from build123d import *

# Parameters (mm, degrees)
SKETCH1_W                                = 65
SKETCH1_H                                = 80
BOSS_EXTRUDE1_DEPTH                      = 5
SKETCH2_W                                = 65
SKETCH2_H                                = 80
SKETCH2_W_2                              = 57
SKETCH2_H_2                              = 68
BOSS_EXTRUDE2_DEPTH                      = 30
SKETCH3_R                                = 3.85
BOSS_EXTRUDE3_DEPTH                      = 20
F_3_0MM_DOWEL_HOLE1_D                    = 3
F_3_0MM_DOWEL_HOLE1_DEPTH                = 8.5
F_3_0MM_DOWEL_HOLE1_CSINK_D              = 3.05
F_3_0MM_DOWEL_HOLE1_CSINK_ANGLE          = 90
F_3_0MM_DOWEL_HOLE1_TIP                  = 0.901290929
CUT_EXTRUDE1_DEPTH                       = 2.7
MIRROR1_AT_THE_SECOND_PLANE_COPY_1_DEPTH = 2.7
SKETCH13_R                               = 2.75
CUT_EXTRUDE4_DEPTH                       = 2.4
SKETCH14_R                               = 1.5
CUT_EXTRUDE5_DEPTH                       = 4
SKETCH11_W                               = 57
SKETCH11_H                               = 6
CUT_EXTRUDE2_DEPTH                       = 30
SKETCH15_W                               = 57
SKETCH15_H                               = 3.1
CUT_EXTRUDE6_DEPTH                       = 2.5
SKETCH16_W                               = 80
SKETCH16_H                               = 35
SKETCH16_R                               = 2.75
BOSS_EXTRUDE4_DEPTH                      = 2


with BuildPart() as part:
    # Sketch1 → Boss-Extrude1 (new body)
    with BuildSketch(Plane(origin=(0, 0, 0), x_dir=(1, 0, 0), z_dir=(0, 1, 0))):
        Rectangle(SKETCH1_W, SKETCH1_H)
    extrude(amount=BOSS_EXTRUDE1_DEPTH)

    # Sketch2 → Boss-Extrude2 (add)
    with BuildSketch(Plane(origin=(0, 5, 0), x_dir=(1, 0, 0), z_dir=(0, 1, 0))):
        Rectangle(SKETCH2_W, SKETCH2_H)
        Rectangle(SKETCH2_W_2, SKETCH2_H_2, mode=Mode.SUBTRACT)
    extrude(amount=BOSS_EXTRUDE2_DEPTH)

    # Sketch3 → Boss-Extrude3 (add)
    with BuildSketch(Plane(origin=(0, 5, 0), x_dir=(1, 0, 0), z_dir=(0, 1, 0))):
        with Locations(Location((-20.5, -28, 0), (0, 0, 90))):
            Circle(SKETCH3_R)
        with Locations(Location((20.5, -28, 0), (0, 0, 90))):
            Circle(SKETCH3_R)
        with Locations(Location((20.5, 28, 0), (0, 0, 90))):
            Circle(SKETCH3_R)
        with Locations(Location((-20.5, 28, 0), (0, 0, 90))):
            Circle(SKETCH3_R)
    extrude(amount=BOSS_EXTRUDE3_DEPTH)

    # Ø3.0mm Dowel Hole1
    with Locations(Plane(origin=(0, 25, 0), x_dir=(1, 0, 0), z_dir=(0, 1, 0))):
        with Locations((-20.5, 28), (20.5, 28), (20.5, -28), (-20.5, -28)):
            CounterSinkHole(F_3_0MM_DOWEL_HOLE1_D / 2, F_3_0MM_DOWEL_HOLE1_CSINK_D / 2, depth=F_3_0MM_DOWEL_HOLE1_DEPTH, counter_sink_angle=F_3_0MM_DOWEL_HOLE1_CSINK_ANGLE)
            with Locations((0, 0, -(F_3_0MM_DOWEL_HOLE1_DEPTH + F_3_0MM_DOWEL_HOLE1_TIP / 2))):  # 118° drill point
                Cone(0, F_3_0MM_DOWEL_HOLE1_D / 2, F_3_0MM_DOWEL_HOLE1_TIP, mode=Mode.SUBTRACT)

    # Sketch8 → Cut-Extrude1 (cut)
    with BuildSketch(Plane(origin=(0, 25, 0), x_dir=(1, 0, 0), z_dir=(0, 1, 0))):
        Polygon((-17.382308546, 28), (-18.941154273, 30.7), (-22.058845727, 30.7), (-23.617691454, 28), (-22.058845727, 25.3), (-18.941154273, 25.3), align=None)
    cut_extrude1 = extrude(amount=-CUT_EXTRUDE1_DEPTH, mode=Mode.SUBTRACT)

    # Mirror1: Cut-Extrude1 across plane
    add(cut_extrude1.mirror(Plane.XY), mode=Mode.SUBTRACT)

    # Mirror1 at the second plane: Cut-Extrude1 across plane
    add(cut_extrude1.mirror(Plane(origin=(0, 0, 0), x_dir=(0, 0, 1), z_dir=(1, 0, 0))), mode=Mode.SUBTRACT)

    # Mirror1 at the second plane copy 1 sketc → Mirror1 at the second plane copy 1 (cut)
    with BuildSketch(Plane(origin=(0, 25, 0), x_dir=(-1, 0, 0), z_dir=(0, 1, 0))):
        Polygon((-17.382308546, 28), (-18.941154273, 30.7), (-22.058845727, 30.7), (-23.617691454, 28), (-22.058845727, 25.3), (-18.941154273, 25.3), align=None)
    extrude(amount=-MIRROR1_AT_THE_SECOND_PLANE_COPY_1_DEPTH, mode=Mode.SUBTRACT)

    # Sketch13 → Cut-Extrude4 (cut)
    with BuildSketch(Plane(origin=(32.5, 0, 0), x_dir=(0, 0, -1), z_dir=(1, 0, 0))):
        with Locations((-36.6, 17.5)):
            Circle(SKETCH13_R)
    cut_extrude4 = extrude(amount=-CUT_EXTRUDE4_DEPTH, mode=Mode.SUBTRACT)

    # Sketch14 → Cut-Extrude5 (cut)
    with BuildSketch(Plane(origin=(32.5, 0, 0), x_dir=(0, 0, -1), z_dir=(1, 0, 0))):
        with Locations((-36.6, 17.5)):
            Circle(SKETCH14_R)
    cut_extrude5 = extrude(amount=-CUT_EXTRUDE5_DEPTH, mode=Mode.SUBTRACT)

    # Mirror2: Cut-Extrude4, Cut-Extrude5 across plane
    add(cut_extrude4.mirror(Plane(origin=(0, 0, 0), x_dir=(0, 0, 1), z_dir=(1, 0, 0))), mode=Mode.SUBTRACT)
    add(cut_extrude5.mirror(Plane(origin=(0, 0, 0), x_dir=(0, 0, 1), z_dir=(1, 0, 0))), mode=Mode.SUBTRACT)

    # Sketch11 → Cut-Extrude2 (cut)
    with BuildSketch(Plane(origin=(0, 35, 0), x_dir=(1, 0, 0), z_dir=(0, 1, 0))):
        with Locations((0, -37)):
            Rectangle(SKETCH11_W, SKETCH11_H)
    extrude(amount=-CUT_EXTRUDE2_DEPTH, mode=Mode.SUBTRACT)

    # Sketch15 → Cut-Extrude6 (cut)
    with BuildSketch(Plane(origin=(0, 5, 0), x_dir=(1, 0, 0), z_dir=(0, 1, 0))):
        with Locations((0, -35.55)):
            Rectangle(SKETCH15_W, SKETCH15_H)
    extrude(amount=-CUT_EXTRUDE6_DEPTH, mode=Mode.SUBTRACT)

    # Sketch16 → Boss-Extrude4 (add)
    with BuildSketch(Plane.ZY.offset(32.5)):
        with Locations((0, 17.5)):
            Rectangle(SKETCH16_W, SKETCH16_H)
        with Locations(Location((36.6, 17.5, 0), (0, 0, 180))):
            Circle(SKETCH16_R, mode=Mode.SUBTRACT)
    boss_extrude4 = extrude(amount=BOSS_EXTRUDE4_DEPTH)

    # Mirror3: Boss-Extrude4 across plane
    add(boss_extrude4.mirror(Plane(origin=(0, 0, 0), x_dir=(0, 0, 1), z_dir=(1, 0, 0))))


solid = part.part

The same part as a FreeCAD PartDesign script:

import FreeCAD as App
import Part
import Sketcher
from FreeCAD import Vector
Q = App.Units.Quantity

doc = App.newDocument("Part")
body = doc.addObject("PartDesign::Body", "Body")

sketch1 = body.newObject("Sketcher::SketchObject", "Sketch")
sketch1.AttachmentSupport = (doc.getObject("XZ_Plane"), [""])
sketch1.MapMode = "FlatFace"
sketch1.addGeometry(Part.LineSegment(Vector(-32, -40, 0), Vector(-32, 40, 0)), False)
sketch1.addGeometry(Part.LineSegment(Vector(-32, 40, 0), Vector(32, 40, 0)), False)
sketch1.addGeometry(Part.LineSegment(Vector(32, 40, 0), Vector(32, -40, 0)), False)
sketch1.addGeometry(Part.LineSegment(Vector(32, -40, 0), Vector(-32, -40, 0)), False)
sketch1.addConstraint(Sketcher.Constraint("Coincident", 0, 2, 1, 1))
sketch1.addConstraint(Sketcher.Constraint("Coincident", 1, 2, 2, 1))
sketch1.addConstraint(Sketcher.Constraint("Coincident", 2, 2, 3, 1))
sketch1.addConstraint(Sketcher.Constraint("Coincident", 3, 2, 0, 1))
sketch1.addConstraint(Sketcher.Constraint("Vertical", 0))
sketch1.addConstraint(Sketcher.Constraint("Horizontal", 1))
sketch1.addConstraint(Sketcher.Constraint("Vertical", 2))
sketch1.addConstraint(Sketcher.Constraint("Horizontal", 3))
sketch1.addConstraint(Sketcher.Constraint("Symmetric", 0, 2, 2, 2, -1, 1))
sketch1.addConstraint(Sketcher.Constraint("DistanceX", 1, 1, 1, 2, Q("65 mm")))
sketch1.addConstraint(Sketcher.Constraint("DistanceY", 0, 1, 0, 2, Q("80 mm")))
pad1 = body.newObject("PartDesign::Pad", "Pad")
pad1.Profile = sketch1
pad1.Length = 5
pad1.Reversed = True

sketch2 = body.newObject("Sketcher::SketchObject", "Sketch001")
sketch2.AttachmentSupport = (doc.getObject("XZ_Plane"), [""])
sketch2.MapMode = "FlatFace"
sketch2.AttachmentOffset = App.Placement(Vector(0, 0, -5), App.Rotation())
sketch2.addGeometry(Part.LineSegment(Vector(-32, -40, 0), Vector(-32, 40, 0)), False)
sketch2.addGeometry(Part.LineSegment(Vector(-32, 40, 0), Vector(32, 40, 0)), False)
sketch2.addGeometry(Part.LineSegment(Vector(32, 40, 0), Vector(32, -40, 0)), False)
sketch2.addGeometry(Part.LineSegment(Vector(32, -40, 0), Vector(-32, -40, 0)), False)
sketch2.addGeometry(Part.LineSegment(Vector(28, 34, 0), Vector(-28, 34, 0)), False)
sketch2.addGeometry(Part.LineSegment(Vector(-28, 34, 0), Vector(-28, -34, 0)), False)
sketch2.addGeometry(Part.LineSegment(Vector(-28, -34, 0), Vector(28, -34, 0)), False)
sketch2.addGeometry(Part.LineSegment(Vector(28, -34, 0), Vector(28, 34, 0)), False)
sketch2.addConstraint(Sketcher.Constraint("Coincident", 0, 2, 1, 1))
sketch2.addConstraint(Sketcher.Constraint("Coincident", 1, 2, 2, 1))
sketch2.addConstraint(Sketcher.Constraint("Coincident", 2, 2, 3, 1))
sketch2.addConstraint(Sketcher.Constraint("Coincident", 3, 2, 0, 1))
sketch2.addConstraint(Sketcher.Constraint("Coincident", 4, 2, 5, 1))
sketch2.addConstraint(Sketcher.Constraint("Coincident", 5, 2, 6, 1))
sketch2.addConstraint(Sketcher.Constraint("Coincident", 6, 2, 7, 1))
sketch2.addConstraint(Sketcher.Constraint("Coincident", 7, 2, 4, 1))
sketch2.addConstraint(Sketcher.Constraint("Vertical", 0))
sketch2.addConstraint(Sketcher.Constraint("Horizontal", 1))
sketch2.addConstraint(Sketcher.Constraint("Vertical", 2))
sketch2.addConstraint(Sketcher.Constraint("Horizontal", 3))
sketch2.addConstraint(Sketcher.Constraint("Horizontal", 4))
sketch2.addConstraint(Sketcher.Constraint("Vertical", 5))
sketch2.addConstraint(Sketcher.Constraint("Horizontal", 6))
sketch2.addConstraint(Sketcher.Constraint("Vertical", 7))
sketch2.addConstraint(Sketcher.Constraint("Symmetric", 0, 2, 2, 2, -1, 1))
sketch2.addConstraint(Sketcher.Constraint("Symmetric", 4, 2, 6, 2, -1, 1))
sketch2.addConstraint(Sketcher.Constraint("DistanceX", 1, 1, 1, 2, Q("65 mm")))
sketch2.addConstraint(Sketcher.Constraint("DistanceX", 4, 2, 4, 1, Q("57 mm")))
sketch2.addConstraint(Sketcher.Constraint("DistanceY", 0, 1, 0, 2, Q("80 mm")))
sketch2.addConstraint(Sketcher.Constraint("DistanceY", 5, 2, 5, 1, Q("68 mm")))
pad2 = body.newObject("PartDesign::Pad", "Pad001")
pad2.Profile = sketch2
pad2.Length = 30
pad2.Reversed = True

sketch3 = body.newObject("Sketcher::SketchObject", "Sketch002")
sketch3.AttachmentSupport = (doc.getObject("XZ_Plane"), [""])
sketch3.MapMode = "FlatFace"
sketch3.AttachmentOffset = App.Placement(Vector(0, 0, -5), App.Rotation())
sketch3.addGeometry(Part.Circle(Vector(-20.5, 28, 0), Vector(0, 0, 1), 3.9), False)
sketch3.addGeometry(Part.Circle(Vector(20.5, 28, 0), Vector(0, 0, 1), 3.9), False)
sketch3.addGeometry(Part.Circle(Vector(20.5, -28, 0), Vector(0, 0, 1), 3.9), False)
sketch3.addGeometry(Part.Circle(Vector(-20.5, -28, 0), Vector(0, 0, 1), 3.9), False)
sketch3.addConstraint(Sketcher.Constraint("Equal", 0, 1))
sketch3.addConstraint(Sketcher.Constraint("Equal", 1, 2))
sketch3.addConstraint(Sketcher.Constraint("Equal", 2, 3))
sketch3.addConstraint(Sketcher.Constraint("Symmetric", 0, 3, 2, 3, -1, 1))
sketch3.addConstraint(Sketcher.Constraint("Symmetric", 1, 3, 3, 3, -1, 1))
sketch3.addConstraint(Sketcher.Constraint("Symmetric", 0, 3, 1, 3, -2))
sketch3.addConstraint(Sketcher.Constraint("Diameter", 0, Q("7.7 mm")))
sketch3.addConstraint(Sketcher.Constraint("DistanceY", -1, 1, 0, 3, Q("28 mm")))
sketch3.addConstraint(Sketcher.Constraint("DistanceX", 0, 3, 1, 3, Q("41 mm")))
pad3 = body.newObject("PartDesign::Pad", "Pad002")
pad3.Profile = sketch3
pad3.Length = 20
pad3.Reversed = True

sketch4 = body.newObject("Sketcher::SketchObject", "Sketch003")
sketch4.AttachmentSupport = (doc.getObject("XZ_Plane"), [""])
sketch4.MapMode = "FlatFace"
sketch4.AttachmentOffset = App.Placement(Vector(0, 0, -25), App.Rotation())
sketch4.addGeometry(Part.Circle(Vector(-20.5, -28, 0), Vector(0, 0, 1), 1.5), False)
sketch4.addGeometry(Part.Circle(Vector(20.5, -28, 0), Vector(0, 0, 1), 1.5), False)
sketch4.addGeometry(Part.Circle(Vector(20.5, 28, 0), Vector(0, 0, 1), 1.5), False)
sketch4.addGeometry(Part.Circle(Vector(-20.5, 28, 0), Vector(0, 0, 1), 1.5), False)
sketch4.addConstraint(Sketcher.Constraint("Equal", 0, 1))
sketch4.addConstraint(Sketcher.Constraint("Equal", 1, 2))
sketch4.addConstraint(Sketcher.Constraint("Equal", 2, 3))
sketch4.addConstraint(Sketcher.Constraint("Symmetric", 0, 3, 2, 3, -1, 1))
sketch4.addConstraint(Sketcher.Constraint("Symmetric", 1, 3, 3, 3, -1, 1))
sketch4.addConstraint(Sketcher.Constraint("Symmetric", 0, 3, 1, 3, -2))
sketch4.addConstraint(Sketcher.Constraint("Diameter", 0, Q("3 mm")))
sketch4.addConstraint(Sketcher.Constraint("DistanceY", 0, 3, -1, 1, Q("28 mm")))
sketch4.addConstraint(Sketcher.Constraint("DistanceX", 0, 3, 1, 3, Q("41 mm")))
doc.recompute()
hole = body.newObject("PartDesign::Hole", "Hole")
hole.Profile = sketch4
hole.ThreadType = "None"
hole.Diameter = 3
hole.DepthType = "Dimension"
hole.Depth = 8.5
hole.DrillPoint = "Angled"
hole.DrillPointAngle = 118
hole.HoleCutType = "Countersink"
hole.HoleCutDiameter = 3.05
hole.HoleCutCountersinkAngle = 90
hole.Reversed = True

sketch5 = body.newObject("Sketcher::SketchObject", "Sketch004")
sketch5.AttachmentSupport = (doc.getObject("XZ_Plane"), [""])
sketch5.MapMode = "FlatFace"
sketch5.AttachmentOffset = App.Placement(Vector(0, 0, -25), App.Rotation())
sketch5.addGeometry(Part.LineSegment(Vector(-17.4, -28, 0), Vector(-18.9, -30.7, 0)), False)
sketch5.addGeometry(Part.LineSegment(Vector(-18.9, -30.7, 0), Vector(-22.1, -30.7, 0)), False)
sketch5.addGeometry(Part.LineSegment(Vector(-22.1, -30.7, 0), Vector(-23.6, -28, 0)), False)
sketch5.addGeometry(Part.LineSegment(Vector(-23.6, -28, 0), Vector(-22.1, -25.3, 0)), False)
sketch5.addGeometry(Part.LineSegment(Vector(-22.1, -25.3, 0), Vector(-18.9, -25.3, 0)), False)
sketch5.addGeometry(Part.LineSegment(Vector(-18.9, -25.3, 0), Vector(-17.4, -28, 0)), False)
sketch5.addConstraint(Sketcher.Constraint("Coincident", 0, 2, 1, 1))
sketch5.addConstraint(Sketcher.Constraint("Coincident", 1, 2, 2, 1))
sketch5.addConstraint(Sketcher.Constraint("Coincident", 2, 2, 3, 1))
sketch5.addConstraint(Sketcher.Constraint("Coincident", 3, 2, 4, 1))
sketch5.addConstraint(Sketcher.Constraint("Coincident", 4, 2, 5, 1))
sketch5.addConstraint(Sketcher.Constraint("Coincident", 5, 2, 0, 1))
sketch5.addConstraint(Sketcher.Constraint("Horizontal", 1))
sketch5.addConstraint(Sketcher.Constraint("Horizontal", 4))
sketch5.addConstraint(Sketcher.Constraint("Parallel", 0, 3))
sketch5.addConstraint(Sketcher.Constraint("Parallel", 2, 5))
sketch5.addConstraint(Sketcher.Constraint("Horizontal", 2, 2, 5, 2))
sketch5.addConstraint(Sketcher.Constraint("Vertical", 1, 2, 3, 2))
sketch5.addConstraint(Sketcher.Constraint("Vertical", 0, 2, 4, 2))
sketch5.addConstraint(Sketcher.Constraint("Angle", 0, Q("-120 deg")))
sketch5.addConstraint(Sketcher.Constraint("DistanceY", 2, 2, -1, 1, Q("28 mm")))
sketch5.addConstraint(Sketcher.Constraint("DistanceY", 0, 2, -1, 1, Q("30.7 mm")))
sketch5.addConstraint(Sketcher.Constraint("DistanceX", 1, 2, 1, 1, Q("3.117691 mm")))
sketch5.addConstraint(Sketcher.Constraint("DistanceX", 2, 2, -1, 1, Q("23.617691 mm")))
pocket1 = body.newObject("PartDesign::Pocket", "Pocket")
pocket1.Profile = sketch5
pocket1.Length = 2.7
pocket1.Reversed = True
doc.recompute()

mirrored = body.newObject("PartDesign::Mirrored", "Mirrored")
mirrored.Originals = [pocket1]
mirrored.MirrorPlane = (doc.getObject("XY_Plane"), [""])
body.Tip = mirrored
doc.recompute()

mirrored2 = body.newObject("PartDesign::Mirrored", "Mirrored001")
mirrored2.Originals = [pocket1]
mirrored2.MirrorPlane = (doc.getObject("YZ_Plane"), [""])
body.Tip = mirrored2

sketch6 = body.newObject("Sketcher::SketchObject", "Sketch005")
sketch6.AttachmentSupport = (doc.getObject("XZ_Plane"), [""])
sketch6.MapMode = "FlatFace"
sketch6.AttachmentOffset = App.Placement(Vector(0, 0, -25), App.Rotation())
sketch6.addGeometry(Part.LineSegment(Vector(17.4, 28, 0), Vector(18.9, 30.7, 0)), False)
sketch6.addGeometry(Part.LineSegment(Vector(18.9, 30.7, 0), Vector(22.1, 30.7, 0)), False)
sketch6.addGeometry(Part.LineSegment(Vector(22.1, 30.7, 0), Vector(23.6, 28, 0)), False)
sketch6.addGeometry(Part.LineSegment(Vector(23.6, 28, 0), Vector(22.1, 25.3, 0)), False)
sketch6.addGeometry(Part.LineSegment(Vector(22.1, 25.3, 0), Vector(18.9, 25.3, 0)), False)
sketch6.addGeometry(Part.LineSegment(Vector(18.9, 25.3, 0), Vector(17.4, 28, 0)), False)
sketch6.addConstraint(Sketcher.Constraint("Coincident", 0, 2, 1, 1))
sketch6.addConstraint(Sketcher.Constraint("Coincident", 1, 2, 2, 1))
sketch6.addConstraint(Sketcher.Constraint("Coincident", 2, 2, 3, 1))
sketch6.addConstraint(Sketcher.Constraint("Coincident", 3, 2, 4, 1))
sketch6.addConstraint(Sketcher.Constraint("Coincident", 4, 2, 5, 1))
sketch6.addConstraint(Sketcher.Constraint("Coincident", 5, 2, 0, 1))
sketch6.addConstraint(Sketcher.Constraint("Horizontal", 1))
sketch6.addConstraint(Sketcher.Constraint("Horizontal", 4))
sketch6.addConstraint(Sketcher.Constraint("Parallel", 0, 3))
sketch6.addConstraint(Sketcher.Constraint("Parallel", 2, 5))
sketch6.addConstraint(Sketcher.Constraint("Horizontal", 2, 2, 5, 2))
sketch6.addConstraint(Sketcher.Constraint("Vertical", 1, 2, 3, 2))
sketch6.addConstraint(Sketcher.Constraint("Vertical", 0, 2, 4, 2))
sketch6.addConstraint(Sketcher.Constraint("Angle", 0, Q("60 deg")))
sketch6.addConstraint(Sketcher.Constraint("DistanceY", -1, 1, 2, 2, Q("28 mm")))
sketch6.addConstraint(Sketcher.Constraint("DistanceY", -1, 1, 0, 2, Q("30.7 mm")))
sketch6.addConstraint(Sketcher.Constraint("DistanceX", 1, 1, 1, 2, Q("3.117691 mm")))
sketch6.addConstraint(Sketcher.Constraint("DistanceX", -1, 1, 2, 2, Q("23.617691 mm")))
pocket2 = body.newObject("PartDesign::Pocket", "Pocket001")
pocket2.Profile = sketch6
pocket2.Length = 2.7
pocket2.Reversed = True

sketch7 = body.newObject("Sketcher::SketchObject", "Sketch006")
sketch7.AttachmentSupport = (doc.getObject("YZ_Plane"), [""])
sketch7.MapMode = "FlatFace"
sketch7.AttachmentOffset = App.Placement(Vector(0, 0, 32.5), App.Rotation())
sketch7.addGeometry(Part.Circle(Vector(17.5, 36.6, 0), Vector(0, 0, 1), 2.8), False)
sketch7.addConstraint(Sketcher.Constraint("Diameter", 0, Q("5.5 mm")))
sketch7.addConstraint(Sketcher.Constraint("DistanceX", -1, 1, 0, 3, Q("17.5 mm")))
sketch7.addConstraint(Sketcher.Constraint("DistanceY", -1, 1, 0, 3, Q("36.6 mm")))
pocket3 = body.newObject("PartDesign::Pocket", "Pocket002")
pocket3.Profile = sketch7
pocket3.Length = 2.4

sketch8 = body.newObject("Sketcher::SketchObject", "Sketch007")
sketch8.AttachmentSupport = (doc.getObject("YZ_Plane"), [""])
sketch8.MapMode = "FlatFace"
sketch8.AttachmentOffset = App.Placement(Vector(0, 0, 32.5), App.Rotation())
sketch8.addGeometry(Part.Circle(Vector(17.5, 36.6, 0), Vector(0, 0, 1), 1.5), False)
sketch8.addConstraint(Sketcher.Constraint("Diameter", 0, Q("3 mm")))
sketch8.addConstraint(Sketcher.Constraint("DistanceX", -1, 1, 0, 3, Q("17.5 mm")))
sketch8.addConstraint(Sketcher.Constraint("DistanceY", -1, 1, 0, 3, Q("36.6 mm")))
pocket4 = body.newObject("PartDesign::Pocket", "Pocket003")
pocket4.Profile = sketch8
pocket4.Length = 4
doc.recompute()

mirrored3 = body.newObject("PartDesign::Mirrored", "Mirrored002")
mirrored3.Originals = [pocket3, pocket4]
mirrored3.MirrorPlane = (doc.getObject("YZ_Plane"), [""])
body.Tip = mirrored3

sketch9 = body.newObject("Sketcher::SketchObject", "Sketch008")
sketch9.AttachmentSupport = (doc.getObject("XZ_Plane"), [""])
sketch9.MapMode = "FlatFace"
sketch9.AttachmentOffset = App.Placement(Vector(0, 0, -35), App.Rotation())
sketch9.addGeometry(Part.LineSegment(Vector(-28, 34, 0), Vector(-28, 40, 0)), False)
sketch9.addGeometry(Part.LineSegment(Vector(-28, 40, 0), Vector(28, 40, 0)), False)
sketch9.addGeometry(Part.LineSegment(Vector(28, 40, 0), Vector(28, 34, 0)), False)
sketch9.addGeometry(Part.LineSegment(Vector(28, 34, 0), Vector(-28, 34, 0)), False)
sketch9.addConstraint(Sketcher.Constraint("Coincident", 0, 2, 1, 1))
sketch9.addConstraint(Sketcher.Constraint("Coincident", 1, 2, 2, 1))
sketch9.addConstraint(Sketcher.Constraint("Coincident", 2, 2, 3, 1))
sketch9.addConstraint(Sketcher.Constraint("Coincident", 3, 2, 0, 1))
sketch9.addConstraint(Sketcher.Constraint("Vertical", 0))
sketch9.addConstraint(Sketcher.Constraint("Horizontal", 1))
sketch9.addConstraint(Sketcher.Constraint("Vertical", 2))
sketch9.addConstraint(Sketcher.Constraint("Horizontal", 3))
sketch9.addConstraint(Sketcher.Constraint("DistanceX", 1, 1, 1, 2, Q("57 mm")))
sketch9.addConstraint(Sketcher.Constraint("DistanceY", 0, 1, 0, 2, Q("6 mm")))
sketch9.addConstraint(Sketcher.Constraint("DistanceY", -1, 1, 0, 2, Q("40 mm")))
sketch9.addConstraint(Sketcher.Constraint("DistanceX", 0, 2, -1, 1, Q("28.5 mm")))
pocket5 = body.newObject("PartDesign::Pocket", "Pocket004")
pocket5.Profile = sketch9
pocket5.Length = 30
pocket5.Reversed = True

sketch10 = body.newObject("Sketcher::SketchObject", "Sketch009")
sketch10.AttachmentSupport = (doc.getObject("XZ_Plane"), [""])
sketch10.MapMode = "FlatFace"
sketch10.AttachmentOffset = App.Placement(Vector(0, 0, -5), App.Rotation())
sketch10.addGeometry(Part.LineSegment(Vector(-28.5, 34, 0), Vector(-28.5, 37.1, 0)), False)
sketch10.addGeometry(Part.LineSegment(Vector(-28.5, 37.1, 0), Vector(28.5, 37.1, 0)), False)
sketch10.addGeometry(Part.LineSegment(Vector(28.5, 37.1, 0), Vector(28.5, 34, 0)), False)
sketch10.addGeometry(Part.LineSegment(Vector(28.5, 34, 0), Vector(-28.5, 34, 0)), False)
sketch10.addConstraint(Sketcher.Constraint("Coincident", 0, 2, 1, 1))
sketch10.addConstraint(Sketcher.Constraint("Coincident", 1, 2, 2, 1))
sketch10.addConstraint(Sketcher.Constraint("Coincident", 2, 2, 3, 1))
sketch10.addConstraint(Sketcher.Constraint("Coincident", 3, 2, 0, 1))
sketch10.addConstraint(Sketcher.Constraint("Vertical", 0))
sketch10.addConstraint(Sketcher.Constraint("Horizontal", 1))
sketch10.addConstraint(Sketcher.Constraint("Vertical", 2))
sketch10.addConstraint(Sketcher.Constraint("Horizontal", 3))
sketch10.addConstraint(Sketcher.Constraint("DistanceX", 1, 1, 1, 2, Q("57 mm")))
sketch10.addConstraint(Sketcher.Constraint("DistanceY", 0, 1, 0, 2, Q("3.1 mm")))
sketch10.addConstraint(Sketcher.Constraint("DistanceY", -1, 1, 2, 2, Q("34 mm")))
sketch10.addConstraint(Sketcher.Constraint("DistanceX", 0, 2, -1, 1, Q("28.5 mm")))
pocket6 = body.newObject("PartDesign::Pocket", "Pocket005")
pocket6.Profile = sketch10
pocket6.Length = 2.5
pocket6.Reversed = True

sketch11 = body.newObject("Sketcher::SketchObject", "Sketch010")
sketch11.AttachmentSupport = (doc.getObject("YZ_Plane"), [""])
sketch11.MapMode = "FlatFace"
sketch11.AttachmentOffset = App.Placement(Vector(0, 0, -32.5), App.Rotation())
sketch11.addGeometry(Part.LineSegment(Vector(35, -40, 0), Vector(0, -40, 0)), False)
sketch11.addGeometry(Part.LineSegment(Vector(0, -40, 0), Vector(0, 40, 0)), False)
sketch11.addGeometry(Part.LineSegment(Vector(0, 40, 0), Vector(35, 40, 0)), False)
sketch11.addGeometry(Part.LineSegment(Vector(35, 40, 0), Vector(35, -40, 0)), False)
sketch11.addGeometry(Part.Circle(Vector(17.5, 36.6, 0), Vector(0, 0, 1), 2.8), False)
sketch11.addConstraint(Sketcher.Constraint("Coincident", 0, 2, 1, 1))
sketch11.addConstraint(Sketcher.Constraint("Coincident", 1, 2, 2, 1))
sketch11.addConstraint(Sketcher.Constraint("Coincident", 2, 2, 3, 1))
sketch11.addConstraint(Sketcher.Constraint("Coincident", 3, 2, 0, 1))
sketch11.addConstraint(Sketcher.Constraint("Horizontal", 0))
sketch11.addConstraint(Sketcher.Constraint("Vertical", 1))
sketch11.addConstraint(Sketcher.Constraint("Horizontal", 2))
sketch11.addConstraint(Sketcher.Constraint("Vertical", 3))
sketch11.addConstraint(Sketcher.Constraint("Symmetric", 0, 2, 1, 2, -1, 1))
sketch11.addConstraint(Sketcher.Constraint("Diameter", 4, Q("5.5 mm")))
sketch11.addConstraint(Sketcher.Constraint("DistanceX", 0, 2, 0, 1, Q("35 mm")))
sketch11.addConstraint(Sketcher.Constraint("DistanceY", 1, 1, 1, 2, Q("80 mm")))
sketch11.addConstraint(Sketcher.Constraint("DistanceX", -1, 1, 4, 3, Q("17.5 mm")))
sketch11.addConstraint(Sketcher.Constraint("DistanceY", -1, 1, 4, 3, Q("36.6 mm")))
pad4 = body.newObject("PartDesign::Pad", "Pad003")
pad4.Profile = sketch11
pad4.Length = 2
pad4.Reversed = True
doc.recompute()

mirrored4 = body.newObject("PartDesign::Mirrored", "Mirrored003")
mirrored4.Originals = [pad4]
mirrored4.MirrorPlane = (doc.getObject("YZ_Plane"), [""])
body.Tip = mirrored4

doc.recompute()
